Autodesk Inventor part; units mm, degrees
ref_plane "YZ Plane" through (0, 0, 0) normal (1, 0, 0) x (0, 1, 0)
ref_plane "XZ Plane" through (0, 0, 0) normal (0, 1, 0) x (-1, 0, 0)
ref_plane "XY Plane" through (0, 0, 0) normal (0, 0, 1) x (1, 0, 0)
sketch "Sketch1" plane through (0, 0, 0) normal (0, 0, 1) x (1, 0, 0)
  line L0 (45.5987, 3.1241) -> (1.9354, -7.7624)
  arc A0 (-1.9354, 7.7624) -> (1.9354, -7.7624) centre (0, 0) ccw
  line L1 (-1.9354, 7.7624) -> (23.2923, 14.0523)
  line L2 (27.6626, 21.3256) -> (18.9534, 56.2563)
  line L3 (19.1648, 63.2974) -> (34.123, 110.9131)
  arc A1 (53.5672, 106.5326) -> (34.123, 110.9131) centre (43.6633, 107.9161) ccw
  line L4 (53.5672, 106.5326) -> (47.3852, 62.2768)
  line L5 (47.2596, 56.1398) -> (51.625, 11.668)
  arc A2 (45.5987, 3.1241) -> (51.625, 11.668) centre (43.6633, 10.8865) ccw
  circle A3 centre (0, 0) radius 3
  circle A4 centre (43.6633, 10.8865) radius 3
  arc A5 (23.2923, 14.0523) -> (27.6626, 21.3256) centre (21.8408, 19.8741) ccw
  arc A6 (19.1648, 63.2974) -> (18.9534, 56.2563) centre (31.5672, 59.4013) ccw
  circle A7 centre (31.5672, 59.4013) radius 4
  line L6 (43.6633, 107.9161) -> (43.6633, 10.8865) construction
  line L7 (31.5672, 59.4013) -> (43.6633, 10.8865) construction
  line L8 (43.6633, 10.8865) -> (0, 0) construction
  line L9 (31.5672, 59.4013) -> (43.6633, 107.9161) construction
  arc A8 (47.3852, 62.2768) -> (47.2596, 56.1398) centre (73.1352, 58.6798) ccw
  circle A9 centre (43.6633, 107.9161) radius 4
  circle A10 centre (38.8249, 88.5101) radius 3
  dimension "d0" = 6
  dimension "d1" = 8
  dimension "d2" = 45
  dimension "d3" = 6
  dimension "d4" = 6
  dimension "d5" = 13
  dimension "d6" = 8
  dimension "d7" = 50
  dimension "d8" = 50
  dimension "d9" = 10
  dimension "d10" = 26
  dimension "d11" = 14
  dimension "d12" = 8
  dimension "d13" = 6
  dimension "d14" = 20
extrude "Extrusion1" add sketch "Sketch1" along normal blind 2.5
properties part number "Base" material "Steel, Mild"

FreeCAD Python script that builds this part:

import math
import FreeCAD as App
import Part
import Sketcher

V = App.Vector
Q = App.Units.Quantity

doc = App.newDocument("Part")
params = doc.addObject("Spreadsheet::Sheet", "Params")
for row, (alias, value) in enumerate([
    ("sketch1_diameter", "6 mm"),
    ("sketch1_diameter2", "6 mm"),
    ("sketch1_diameter3", "8 mm"),
    ("sketch1_diameter4", "6 mm"),
    ("sketch1_diameter5", "8 mm"),
    ("pad1_length", "2.5 mm"),
], start=1):
    params.set(f"A{row}", alias)
    params.set(f"B{row}", "=" + value)
    params.setAlias(f"B{row}", alias)

body = doc.addObject("PartDesign::Body", "Body")

sketch1 = doc.addObject("Sketcher::SketchObject", "Sketch")
body.addObject(sketch1)
sketch1.AttachmentSupport = (doc.XY_Plane, [""])
sketch1.MapMode = "FlatFace"
sketch1.addGeometry(Part.LineSegment(V(1.9354, -7.7624, 0), V(45.5987, 3.1241, 0)), False)
sketch1.addGeometry(Part.ArcOfCircle(Part.Circle(V(43.6633, 10.8865, 0), V(0, 0, 1), 8.000039), math.radians(-75.999887), math.radians(5.606048)), False)
sketch1.addGeometry(Part.LineSegment(V(51.625, 11.668, 0), V(47.2596, 56.1398, 0)), False)
sketch1.addGeometry(Part.ArcOfCircle(Part.Circle(V(73.131584, 58.680089, 0), V(0, 0, 1), 25.996396), math.radians(172.047376), math.radians(185.607718)), False)
sketch1.addGeometry(Part.LineSegment(V(47.3852, 62.2768, 0), V(53.5672, 106.5326, 0)), False)
sketch1.addGeometry(Part.ArcOfCircle(Part.Circle(V(43.6633, 107.9161, 0), V(0, 0, 1), 10.000065), math.radians(-7.952327), math.radians(162.560355)), False)
sketch1.addGeometry(Part.LineSegment(V(34.123, 110.9131, 0), V(19.1648, 63.2974, 0)), False)
sketch1.addGeometry(Part.ArcOfCircle(Part.Circle(V(31.5672, 59.4013, 0), V(0, 0, 1), 12.999966), math.radians(162.560368), math.radians(194.000113)), False)
sketch1.addGeometry(Part.LineSegment(V(18.9534, 56.2563, 0), V(27.6626, 21.3256, 0)), False)
sketch1.addGeometry(Part.ArcOfCircle(Part.Circle(V(21.8408, 19.8741, 0), V(0, 0, 1), 6.000017), math.radians(-76.00035), math.radians(13.99965)), False)
sketch1.addGeometry(Part.LineSegment(V(23.2923, 14.0523, 0), V(-1.9354, 7.7624, 0)), False)
sketch1.addGeometry(Part.ArcOfCircle(Part.Circle(V(0, 0, 0), V(0, 0, 1), 8.000039), math.radians(104.000113), math.radians(284.000113)), False)
sketch1.addGeometry(Part.Circle(V(0, 0, 0), V(0, 0, 1), 3), False)
sketch1.addGeometry(Part.Circle(V(43.6633, 10.8865, 0), V(0, 0, 1), 3), False)
sketch1.addGeometry(Part.Circle(V(31.5672, 59.4013, 0), V(0, 0, 1), 4), False)
sketch1.addGeometry(Part.Circle(V(38.8249, 88.5101, 0), V(0, 0, 1), 3), False)
sketch1.addGeometry(Part.Circle(V(43.6633, 107.9161, 0), V(0, 0, 1), 4), False)
sketch1.addConstraint(Sketcher.Constraint("Coincident", 0, 2, 1, 1))
sketch1.addConstraint(Sketcher.Constraint("Coincident", 1, 2, 2, 1))
sketch1.addConstraint(Sketcher.Constraint("Coincident", 2, 2, 3, 2))
sketch1.addConstraint(Sketcher.Constraint("Coincident", 3, 1, 4, 1))
sketch1.addConstraint(Sketcher.Constraint("Coincident", 4, 2, 5, 1))
sketch1.addConstraint(Sketcher.Constraint("Coincident", 5, 2, 6, 1))
sketch1.addConstraint(Sketcher.Constraint("Coincident", 6, 2, 7, 1))
sketch1.addConstraint(Sketcher.Constraint("Coincident", 7, 2, 8, 1))
sketch1.addConstraint(Sketcher.Constraint("Coincident", 8, 2, 9, 2))
sketch1.addConstraint(Sketcher.Constraint("Coincident", 9, 1, 10, 1))
sketch1.addConstraint(Sketcher.Constraint("Coincident", 10, 2, 11, 1))
sketch1.addConstraint(Sketcher.Constraint("Coincident", 11, 2, 0, 1))
sketch1.addConstraint(Sketcher.Constraint("Coincident", 11, 3, -1, 1))
sketch1.addConstraint(Sketcher.Constraint("Coincident", 12, 3, -1, 1))
sketch1.addConstraint(Sketcher.Constraint("Coincident", 13, 3, 1, 3))
sketch1.addConstraint(Sketcher.Constraint("Coincident", 14, 3, 7, 3))
sketch1.addConstraint(Sketcher.Constraint("Coincident", 16, 3, 5, 3))
sketch1.addConstraint(Sketcher.Constraint("Diameter", 12, Q("6 mm")))
sketch1.addConstraint(Sketcher.Constraint("Diameter", 13, Q("6 mm")))
sketch1.addConstraint(Sketcher.Constraint("Diameter", 14, Q("8 mm")))
sketch1.addConstraint(Sketcher.Constraint("Diameter", 15, Q("6 mm")))
sketch1.addConstraint(Sketcher.Constraint("Diameter", 16, Q("8 mm")))
sketch1.addConstraint(Sketcher.Constraint("Radius", 1, Q("8 mm")))
sketch1.addConstraint(Sketcher.Constraint("Radius", 5, Q("10 mm")))
sketch1.addConstraint(Sketcher.Constraint("Radius", 7, Q("13 mm")))
sketch1.addConstraint(Sketcher.Constraint("Radius", 9, Q("6 mm")))
sketch1.addConstraint(Sketcher.Constraint("Radius", 11, Q("8 mm")))
sketch1.addConstraint(Sketcher.Constraint("Distance", 0, Q("45 mm")))
sketch1.addConstraint(Sketcher.Constraint("Distance", 10, Q("26 mm")))
sketch1.addConstraint(Sketcher.Constraint("Distance", 8, Q("36 mm")))
sketch1.addConstraint(Sketcher.Constraint("Radius", 3, Q("25.9964 mm")))
sketch1.addConstraint(Sketcher.Constraint("Distance", 6, Q("49.91 mm")))
sketch1.addConstraint(Sketcher.Constraint("DistanceY", -1, 1, 3, 3, Q("58.68 mm")))
sketch1.addConstraint(Sketcher.Constraint("DistanceY", -1, 1, 15, 3, Q("88.51 mm")))
sketch1.addConstraint(Sketcher.Constraint("DistanceY", 0, 2, 9, 3, Q("16.75 mm")))
sketch1.addConstraint(Sketcher.Constraint("DistanceX", 6, 2, 15, 3, Q("19.66 mm")))
sketch1.addConstraint(Sketcher.Constraint("DistanceY", 10, 2, 9, 1, Q("6.29 mm")))
sketch1.addConstraint(Sketcher.Constraint("DistanceY", -1, 1, 5, 3, Q("107.916 mm")))
sketch1.addConstraint(Sketcher.Constraint("DistanceY", -1, 1, 9, 3, Q("19.874 mm")))
sketch1.addConstraint(Sketcher.Constraint("DistanceX", -1, 1, 15, 3, Q("38.825 mm")))
sketch1.addConstraint(Sketcher.Constraint("DistanceX", -1, 1, 1, 2, Q("51.625 mm")))
sketch1.addConstraint(Sketcher.Constraint("DistanceY", -1, 1, 1, 2, Q("11.668 mm")))
sketch1.addConstraint(Sketcher.Constraint("DistanceX", -1, 1, 5, 2, Q("34.123 mm")))
sketch1.addConstraint(Sketcher.Constraint("DistanceX", 7, 3, 1, 3, Q("12.096 mm")))
sketch1.addConstraint(Sketcher.Constraint("DistanceX", 7, 3, 5, 3, Q("12.096 mm")))
sketch1.addConstraint(Sketcher.Constraint("DistanceX", 9, 3, 0, 2, Q("23.758 mm")))
sketch1.addConstraint(Sketcher.Constraint("DistanceX", 2, 2, 3, 3, Q("25.872 mm")))
sketch1.addConstraint(Sketcher.Constraint("DistanceY", 2, 2, 3, 1, Q("6.137 mm")))
sketch1.addConstraint(Sketcher.Constraint("DistanceX", 7, 3, 3, 1, Q("15.818 mm")))
sketch1.addConstraint(Sketcher.Constraint("DistanceX", 5, 3, 4, 2, Q("9.904 mm")))
sketch1.addConstraint(Sketcher.Constraint("DistanceY", 7, 2, 6, 2, Q("7.041 mm")))
sketch1.addConstraint(Sketcher.Constraint("DistanceX", 9, 1, 1, 3, Q("20.371 mm")))
sketch1.setExpression("Constraints[17]", "Params.sketch1_diameter")
sketch1.setExpression("Constraints[18]", "Params.sketch1_diameter2")
sketch1.setExpression("Constraints[19]", "Params.sketch1_diameter3")
sketch1.setExpression("Constraints[20]", "Params.sketch1_diameter4")
sketch1.setExpression("Constraints[21]", "Params.sketch1_diameter5")
pad1 = doc.addObject("PartDesign::Pad", "Pad")
body.addObject(pad1)
pad1.Profile = sketch1
pad1.setExpression("Length", "Params.pad1_length")

doc.recompute()
